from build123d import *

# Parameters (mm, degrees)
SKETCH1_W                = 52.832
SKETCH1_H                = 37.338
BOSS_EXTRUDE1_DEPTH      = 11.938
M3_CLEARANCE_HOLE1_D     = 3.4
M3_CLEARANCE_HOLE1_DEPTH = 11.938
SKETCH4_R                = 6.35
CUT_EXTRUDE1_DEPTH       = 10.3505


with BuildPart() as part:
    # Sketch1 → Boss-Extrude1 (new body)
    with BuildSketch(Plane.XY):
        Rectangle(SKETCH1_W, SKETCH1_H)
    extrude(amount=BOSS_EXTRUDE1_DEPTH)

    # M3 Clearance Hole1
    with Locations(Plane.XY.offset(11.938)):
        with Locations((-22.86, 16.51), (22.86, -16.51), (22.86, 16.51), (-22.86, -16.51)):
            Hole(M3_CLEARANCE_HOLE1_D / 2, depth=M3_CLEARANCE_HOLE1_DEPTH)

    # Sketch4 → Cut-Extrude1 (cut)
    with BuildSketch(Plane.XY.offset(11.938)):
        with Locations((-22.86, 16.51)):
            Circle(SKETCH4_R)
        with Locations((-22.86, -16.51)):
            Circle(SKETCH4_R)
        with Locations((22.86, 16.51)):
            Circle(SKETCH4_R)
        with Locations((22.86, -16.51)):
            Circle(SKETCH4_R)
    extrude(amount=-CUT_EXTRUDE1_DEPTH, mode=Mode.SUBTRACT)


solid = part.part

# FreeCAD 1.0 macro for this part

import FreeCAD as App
import Part
import Sketcher
Q = App.Units.Quantity


def add_polygon(sketch, points):
    """Adds a closed chain of lines whose ends are joined by coincident constraints."""
    first, n = sketch.GeometryCount, len(points)
    for a, b in zip(points, points[1:] + points[:1]):
        sketch.addGeometry(Part.LineSegment(App.Vector(*a, 0), App.Vector(*b, 0)), False)
    for i in range(n):
        sketch.addConstraint(Sketcher.Constraint("Coincident", first + i, 2, first + (i + 1) % n, 1))

doc = App.newDocument("Part")
body = doc.addObject("PartDesign::Body", "Body")

# Sketch on XY plane
sketch1 = body.newObject("Sketcher::SketchObject", "Sketch")
sketch1.AttachmentSupport = (doc.getObject("XY_Plane"), [""])
sketch1.MapMode = "FlatFace"
add_polygon(sketch1, [(-26, 19), (-26, -19), (26, -19), (26, 19)])  # lines 0-3
sketch1.addConstraint(Sketcher.Constraint("Vertical", 0))
sketch1.addConstraint(Sketcher.Constraint("Horizontal", 1))
sketch1.addConstraint(Sketcher.Constraint("Vertical", 2))
sketch1.addConstraint(Sketcher.Constraint("Horizontal", 3))
sketch1.addConstraint(Sketcher.Constraint("Symmetric", 0, 2, 2, 2, -1, 1))
sketch1.addConstraint(Sketcher.Constraint("DistanceX", 1, 1, 1, 2, Q("2.08 in")))
sketch1.addConstraint(Sketcher.Constraint("DistanceY", 0, 2, 0, 1, Q("1.47 in")))
pad1 = body.newObject("PartDesign::Pad", "Pad")
pad1.Profile = sketch1
pad1.Length = Q("0.47 in")

# Sketch on XY plane
sketch2 = body.newObject("Sketcher::SketchObject", "Sketch001")
sketch2.AttachmentSupport = (doc.getObject("XY_Plane"), [""])
sketch2.MapMode = "FlatFace"
sketch2.AttachmentOffset = App.Placement(App.Vector(0, 0, 0.47 * 25.4), App.Rotation())
sketch2.addGeometry(Part.Circle(App.Vector(-22.9, 16.5, 0), App.Vector(0, 0, 1), 1.7), False)
sketch2.addGeometry(Part.Circle(App.Vector(22.9, -16.5, 0), App.Vector(0, 0, 1), 1.7), False)
sketch2.addGeometry(Part.Circle(App.Vector(22.9, 16.5, 0), App.Vector(0, 0, 1), 1.7), False)
sketch2.addGeometry(Part.Circle(App.Vector(-22.9, -16.5, 0), App.Vector(0, 0, 1), 1.7), False)
sketch2.addConstraint(Sketcher.Constraint("Equal", 0, 1))
sketch2.addConstraint(Sketcher.Constraint("Equal", 1, 2))
sketch2.addConstraint(Sketcher.Constraint("Equal", 2, 3))
sketch2.addConstraint(Sketcher.Constraint("Symmetric", 0, 3, 1, 3, -1, 1))
sketch2.addConstraint(Sketcher.Constraint("Symmetric", 2, 3, 3, 3, -1, 1))
sketch2.addConstraint(Sketcher.Constraint("Symmetric", 0, 3, 2, 3, -2))
sketch2.addConstraint(Sketcher.Constraint("DistanceX", 0, 3, -1, 1, Q("0.9 in")))
sketch2.addConstraint(Sketcher.Constraint("DistanceY", 1, 3, 0, 3, Q("1.3 in")))
sketch2.addConstraint(Sketcher.Constraint("Diameter", 0, 3.4))
doc.recompute()
hole = body.newObject("PartDesign::Hole", "Hole")
hole.Profile = sketch2
hole.ThreadType = "None"
hole.Diameter = 3.4
hole.DepthType = "Dimension"
hole.Depth = Q("0.47 in")
hole.DrillPoint = "Flat"

# Sketch on XY plane
sketch3 = body.newObject("Sketcher::SketchObject", "Sketch002")
sketch3.AttachmentSupport = (doc.getObject("XY_Plane"), [""])
sketch3.MapMode = "FlatFace"
sketch3.AttachmentOffset = App.Placement(App.Vector(0, 0, 0.47 * 25.4), App.Rotation())
sketch3.addGeometry(Part.Circle(App.Vector(-23, 17, 0), App.Vector(0, 0, 1), 6), False)
sketch3.addGeometry(Part.Circle(App.Vector(-23, -17, 0), App.Vector(0, 0, 1), 6), False)
sketch3.addGeometry(Part.Circle(App.Vector(23, 17, 0), App.Vector(0, 0, 1), 6), False)
sketch3.addGeometry(Part.Circle(App.Vector(23, -17, 0), App.Vector(0, 0, 1), 6), False)
sketch3.addConstraint(Sketcher.Constraint("Equal", 0, 1))
sketch3.addConstraint(Sketcher.Constraint("Equal", 1, 2))
sketch3.addConstraint(Sketcher.Constraint("Equal", 2, 3))
sketch3.addConstraint(Sketcher.Constraint("Symmetric", 1, 3, 2, 3, -1, 1))
sketch3.addConstraint(Sketcher.Constraint("Symmetric", 0, 3, 3, 3, -1, 1))
sketch3.addConstraint(Sketcher.Constraint("Symmetric", 0, 3, 2, 3, -2))
sketch3.addConstraint(Sketcher.Constraint("Diameter", 0, Q("0.5 in")))
sketch3.addConstraint(Sketcher.Constraint("DistanceX", 0, 3, -1, 1, Q("0.9 in")))
sketch3.addConstraint(Sketcher.Constraint("DistanceY", 1, 3, 0, 3, Q("1.3 in")))
pocket1 = body.newObject("PartDesign::Pocket", "Pocket")
pocket1.Profile = sketch3
pocket1.Length = Q("0.4075 in")

doc.recompute()
